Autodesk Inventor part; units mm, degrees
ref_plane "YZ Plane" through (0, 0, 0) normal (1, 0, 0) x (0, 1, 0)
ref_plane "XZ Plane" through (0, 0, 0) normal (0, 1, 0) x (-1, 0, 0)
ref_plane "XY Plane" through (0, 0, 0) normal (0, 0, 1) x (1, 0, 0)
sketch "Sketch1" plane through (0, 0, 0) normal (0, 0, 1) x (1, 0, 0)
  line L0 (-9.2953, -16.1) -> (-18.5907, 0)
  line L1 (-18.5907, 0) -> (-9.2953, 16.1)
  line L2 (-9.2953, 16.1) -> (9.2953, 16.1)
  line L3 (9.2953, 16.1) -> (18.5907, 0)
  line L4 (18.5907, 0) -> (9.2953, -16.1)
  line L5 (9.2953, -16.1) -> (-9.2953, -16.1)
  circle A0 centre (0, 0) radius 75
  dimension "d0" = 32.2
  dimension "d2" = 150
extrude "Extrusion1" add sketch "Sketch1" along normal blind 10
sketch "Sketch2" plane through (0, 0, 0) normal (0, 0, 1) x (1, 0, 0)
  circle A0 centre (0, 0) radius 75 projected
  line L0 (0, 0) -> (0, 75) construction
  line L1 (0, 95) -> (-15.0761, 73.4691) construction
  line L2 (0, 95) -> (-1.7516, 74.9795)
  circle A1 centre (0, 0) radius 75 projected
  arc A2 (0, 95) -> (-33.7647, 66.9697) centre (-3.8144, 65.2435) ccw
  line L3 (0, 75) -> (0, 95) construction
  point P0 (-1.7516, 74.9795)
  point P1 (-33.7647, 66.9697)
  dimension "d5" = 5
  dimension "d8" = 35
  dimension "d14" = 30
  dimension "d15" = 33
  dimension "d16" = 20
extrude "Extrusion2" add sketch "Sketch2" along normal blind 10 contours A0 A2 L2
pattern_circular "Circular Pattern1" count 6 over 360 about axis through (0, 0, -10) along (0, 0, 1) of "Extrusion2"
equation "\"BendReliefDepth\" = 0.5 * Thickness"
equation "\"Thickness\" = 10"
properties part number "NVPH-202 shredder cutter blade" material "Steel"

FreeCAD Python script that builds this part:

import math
import FreeCAD as App
import Part
import Sketcher
Q = App.Units.Quantity

doc = App.newDocument("Part")
params = doc.addObject("Spreadsheet::Sheet", "Params")
for row, (alias, value) in enumerate([
    ("sketch1_diameter", "150 mm"),
    ("pad1_length", "10 mm"),
    ("sketch2_radius", "30 mm"),
    ("sketch2_radius2", "75 mm"),
    ("pad2_length", "10 mm"),
], start=1):
    params.set(f"A{row}", alias)
    params.set(f"B{row}", "=" + value)
    params.setAlias(f"B{row}", alias)

body = doc.addObject("PartDesign::Body", "Body")

# Sketch on XY plane
sketch1 = doc.addObject("Sketcher::SketchObject", "Sketch")
body.addObject(sketch1)
sketch1.AttachmentSupport = (doc.XY_Plane, [""])
sketch1.MapMode = "FlatFace"
sketch1.addGeometry([
    Part.Circle(App.Vector(0, 0, 0), App.Vector(0, 0, 1), 75),  # 0
    Part.LineSegment(App.Vector(9, -16, 0), App.Vector(-9, -16, 0)),  # 1
    Part.LineSegment(App.Vector(-9, -16, 0), App.Vector(-19, 0, 0)),  # 2
    Part.LineSegment(App.Vector(-19, 0, 0), App.Vector(-9, 16, 0)),  # 3
    Part.LineSegment(App.Vector(-9, 16, 0), App.Vector(9, 16, 0)),  # 4
    Part.LineSegment(App.Vector(9, 16, 0), App.Vector(19, 0, 0)),  # 5
    Part.LineSegment(App.Vector(19, 0, 0), App.Vector(9, -16, 0)),  # 6
], False)
sketch1.addConstraint([
    Sketcher.Constraint("Coincident", 1, 2, 2, 1),
    Sketcher.Constraint("Coincident", 2, 2, 3, 1),
    Sketcher.Constraint("Coincident", 3, 2, 4, 1),
    Sketcher.Constraint("Coincident", 4, 2, 5, 1),
    Sketcher.Constraint("Coincident", 5, 2, 6, 1),
    Sketcher.Constraint("Coincident", 6, 2, 1, 1),
    Sketcher.Constraint("Horizontal", 1),
    Sketcher.Constraint("Horizontal", 4),
    Sketcher.Constraint("Coincident", 0, 3, -1, 1),
    Sketcher.Constraint("Symmetric", 1, 2, 4, 2, -1, 1),
    Sketcher.Constraint("Symmetric", 2, 2, 5, 2, -1, 1),
    Sketcher.Constraint("PointOnObject", 2, 2, -1),
    Sketcher.Constraint("Parallel", 3, 6),
    Sketcher.Constraint("Vertical", 1, 2, 3, 2),
    Sketcher.Constraint("Diameter", 0, Q("150 mm")),
    Sketcher.Constraint("DistanceY", 1, 2, 3, 2, Q("32.2 mm")),
    Sketcher.Constraint("Angle", 2, Q("120.0002 deg")),
    Sketcher.Constraint("DistanceX", 1, 2, 1, 1, Q("18.5906 mm")),
])
sketch1.setExpression("Constraints[14]", "Params.sketch1_diameter")
pad1 = doc.addObject("PartDesign::Pad", "Pad")
body.addObject(pad1)
pad1.Profile = sketch1
pad1.setExpression("Length", "Params.pad1_length")

# Sketch on XY plane
sketch2 = doc.addObject("Sketcher::SketchObject", "Sketch001")
body.addObject(sketch2)
sketch2.AttachmentSupport = (doc.XY_Plane, [""])
sketch2.MapMode = "FlatFace"
sketch2.addGeometry([
    Part.ArcOfCircle(Part.Circle(App.Vector(0, 0, 0), App.Vector(0, 0, 1), 75), math.radians(91), math.radians(117)),
    Part.LineSegment(App.Vector(-2, 75, 0), App.Vector(0, 95, 0)),
    Part.ArcOfCircle(Part.Circle(App.Vector(-4, 65, 0), App.Vector(0, 0, 1), 30), math.radians(83), math.radians(177)),
], False)
sketch2.addConstraint([
    Sketcher.Constraint("Coincident", 0, 1, 1, 1),
    Sketcher.Constraint("Coincident", 1, 2, 2, 1),
    Sketcher.Constraint("Coincident", 2, 2, 0, 2),
    Sketcher.Constraint("Coincident", 0, 3, -1, 1),
    Sketcher.Constraint("PointOnObject", 1, 2, -2),
    Sketcher.Constraint("Radius", 2, Q("30 mm")),
    Sketcher.Constraint("Radius", 0, Q("75 mm")),
    Sketcher.Constraint("Angle", 1, Q("85 deg")),
    Sketcher.Constraint("DistanceY", -1, 1, 1, 2, Q("95 mm")),
    Sketcher.Constraint("DistanceY", 2, 3, 0, 1, Q("9.736 mm")),
])
sketch2.setExpression("Constraints[5]", "Params.sketch2_radius")
sketch2.setExpression("Constraints[6]", "Params.sketch2_radius2")
pad2 = doc.addObject("PartDesign::Pad", "Pad001")
body.addObject(pad2)
pad2.Profile = sketch2
pad2.setExpression("Length", "Params.pad2_length")
doc.recompute()

polarpattern = doc.addObject("PartDesign::PolarPattern", "PolarPattern")
body.addObject(polarpattern)
polarpattern.Originals = [pad2]
polarpattern.Axis = (doc.Z_Axis, [""])
polarpattern.Angle = 360
polarpattern.Occurrences = 6
body.Tip = polarpattern

doc.recompute()
